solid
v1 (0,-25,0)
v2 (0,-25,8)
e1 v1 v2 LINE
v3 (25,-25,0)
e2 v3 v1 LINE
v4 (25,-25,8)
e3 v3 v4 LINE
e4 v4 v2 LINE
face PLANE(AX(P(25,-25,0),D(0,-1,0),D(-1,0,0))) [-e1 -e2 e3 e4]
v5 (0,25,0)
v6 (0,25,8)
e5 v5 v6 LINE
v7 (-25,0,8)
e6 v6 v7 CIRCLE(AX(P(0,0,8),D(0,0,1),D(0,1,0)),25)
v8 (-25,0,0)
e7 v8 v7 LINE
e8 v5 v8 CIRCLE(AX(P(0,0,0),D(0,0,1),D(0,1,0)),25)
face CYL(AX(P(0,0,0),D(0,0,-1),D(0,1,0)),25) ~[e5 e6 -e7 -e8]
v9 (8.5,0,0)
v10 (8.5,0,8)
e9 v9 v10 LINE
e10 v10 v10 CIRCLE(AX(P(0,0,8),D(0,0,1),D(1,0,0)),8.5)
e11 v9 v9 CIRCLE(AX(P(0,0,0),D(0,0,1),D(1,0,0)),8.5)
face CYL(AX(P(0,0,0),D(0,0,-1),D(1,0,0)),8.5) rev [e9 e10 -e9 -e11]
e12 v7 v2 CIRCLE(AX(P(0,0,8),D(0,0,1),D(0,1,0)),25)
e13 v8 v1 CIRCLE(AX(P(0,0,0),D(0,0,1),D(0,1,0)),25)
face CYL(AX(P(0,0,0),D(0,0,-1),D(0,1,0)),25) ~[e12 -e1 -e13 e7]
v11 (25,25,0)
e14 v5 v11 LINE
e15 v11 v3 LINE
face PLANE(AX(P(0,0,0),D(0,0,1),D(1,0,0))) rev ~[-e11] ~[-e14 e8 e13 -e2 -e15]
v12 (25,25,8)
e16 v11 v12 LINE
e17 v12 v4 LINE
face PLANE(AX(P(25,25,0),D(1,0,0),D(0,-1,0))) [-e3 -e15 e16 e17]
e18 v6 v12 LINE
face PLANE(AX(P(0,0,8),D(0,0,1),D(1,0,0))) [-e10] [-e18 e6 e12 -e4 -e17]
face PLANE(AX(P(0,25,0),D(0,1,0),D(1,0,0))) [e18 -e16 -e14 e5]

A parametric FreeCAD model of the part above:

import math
import FreeCAD as App
import Part
import Sketcher
from FreeCAD import Vector
Q = App.Units.Quantity

doc = App.newDocument("Part")
params = doc.addObject("Spreadsheet::Sheet", "Params")
for row, (alias, value) in enumerate([
    ("sketch1_diameter", "17 mm"),
    ("sketch1_radius", "25 mm"),
    ("sketch1_width", "25 mm"),
    ("pad1_length", "8 mm"),
], start=1):
    params.set(f"A{row}", alias)
    params.set(f"B{row}", "=" + value)
    params.setAlias(f"B{row}", alias)

body = doc.addObject("PartDesign::Body", "Body")

# Sketch on XY plane
sketch1 = doc.addObject("Sketcher::SketchObject", "Sketch")
body.addObject(sketch1)
sketch1.AttachmentSupport = (doc.XY_Plane, [""])
sketch1.MapMode = "FlatFace"
sketch1.addGeometry([
    Part.LineSegment(Vector(25, 25, 0), Vector(0, 25, 0)),  # 0
    Part.ArcOfCircle(Part.Circle(Vector(0, 0, 0), Vector(0, 0, 1), 25), math.radians(90), math.radians(270)),  # 1
    Part.LineSegment(Vector(0, -25, 0), Vector(25, -25, 0)),  # 2
    Part.LineSegment(Vector(25, -25, 0), Vector(25, 25, 0)),  # 3
    Part.Circle(Vector(0, 0, 0), Vector(0, 0, 1), 8),  # 4
], False)
sketch1.addConstraint([
    Sketcher.Constraint("Tangent", 0, 2, 1, 1),
    Sketcher.Constraint("Tangent", 1, 2, 2, 1),
    Sketcher.Constraint("Coincident", 2, 2, 3, 1),
    Sketcher.Constraint("Coincident", 3, 2, 0, 1),
    Sketcher.Constraint("Horizontal", 0),
    Sketcher.Constraint("Horizontal", 2),
    Sketcher.Constraint("Vertical", 3),
    Sketcher.Constraint("Coincident", 1, 3, -1, 1),
    Sketcher.Constraint("Coincident", 4, 3, -1, 1),
    Sketcher.Constraint("Diameter", 4, Q("17 mm")),
    Sketcher.Constraint("Radius", 1, Q("25 mm")),
    Sketcher.Constraint("DistanceX", 0, 2, 0, 1, Q("25 mm")),
])
sketch1.setExpression("Constraints[9]", "Params.sketch1_diameter")
sketch1.setExpression("Constraints[10]", "Params.sketch1_radius")
sketch1.setExpression("Constraints[11]", "Params.sketch1_width")
pad1 = doc.addObject("PartDesign::Pad", "Pad")
body.addObject(pad1)
pad1.Profile = sketch1
pad1.setExpression("Length", "Params.pad1_length")

doc.recompute()
